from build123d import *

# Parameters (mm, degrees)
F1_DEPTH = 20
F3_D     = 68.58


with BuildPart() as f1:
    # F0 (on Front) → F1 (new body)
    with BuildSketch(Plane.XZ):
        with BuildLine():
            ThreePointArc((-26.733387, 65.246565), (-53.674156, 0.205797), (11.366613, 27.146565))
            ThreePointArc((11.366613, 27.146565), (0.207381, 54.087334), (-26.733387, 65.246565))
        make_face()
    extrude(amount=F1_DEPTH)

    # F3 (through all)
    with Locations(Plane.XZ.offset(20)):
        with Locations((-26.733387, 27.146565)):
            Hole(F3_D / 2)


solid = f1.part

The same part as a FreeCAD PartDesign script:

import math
import FreeCAD as App
import Part
import Sketcher
Q = App.Units.Quantity

doc = App.newDocument("Part")
body = doc.addObject("PartDesign::Body", "Body")

# Sketch on XZ plane
sketch1 = doc.addObject("Sketcher::SketchObject", "Sketch")
body.addObject(sketch1)
sketch1.AttachmentSupport = (doc.XZ_Plane, [""])
sketch1.MapMode = "FlatFace"
sketch1.addGeometry(Part.ArcOfCircle(Part.Circle(App.Vector(-26.733387, 27.146565, 0), App.Vector(0, 0, 1), 38.1), math.radians(90), math.radians(360)), False)
sketch1.addGeometry(Part.ArcOfCircle(Part.Circle(App.Vector(-26.733387, 27.146565, 0), App.Vector(0, 0, 1), 38.1), math.radians(-0.000001), math.radians(90.000001)), False)
sketch1.addConstraint(Sketcher.Constraint("Tangent", 0, 1, 1, 2))
sketch1.addConstraint(Sketcher.Constraint("Coincident", 1, 1, 0, 2))
sketch1.addConstraint(Sketcher.Constraint("Horizontal", 0, 3, 1, 1))
sketch1.addConstraint(Sketcher.Constraint("Vertical", 1, 3, 0, 1))
sketch1.addConstraint(Sketcher.Constraint("Radius", 0, Q("1.5 in")))
sketch1.addConstraint(Sketcher.Constraint("DistanceX", 0, 3, -1, 1, 26.733387))
sketch1.addConstraint(Sketcher.Constraint("DistanceY", -1, 1, 0, 3, 27.146565))
pad1 = doc.addObject("PartDesign::Pad", "Pad")
body.addObject(pad1)
pad1.Profile = sketch1
pad1.Length = 20

# Sketch on XZ plane
sketch2 = doc.addObject("Sketcher::SketchObject", "Sketch001")
body.addObject(sketch2)
sketch2.AttachmentSupport = (doc.XZ_Plane, [""])
sketch2.MapMode = "FlatFace"
sketch2.AttachmentOffset = App.Placement(App.Vector(0, 0, 20), App.Rotation())
sketch2.addGeometry(Part.Circle(App.Vector(-26.733387, 27.146565, 0), App.Vector(0, 0, 1), 34.29), False)
sketch2.addConstraint(Sketcher.Constraint("Diameter", 0, Q("2.7 in")))
sketch2.addConstraint(Sketcher.Constraint("DistanceX", 0, 3, -1, 1, 26.733387))
sketch2.addConstraint(Sketcher.Constraint("DistanceY", -1, 1, 0, 3, 27.146565))
doc.recompute()
hole = doc.addObject("PartDesign::Hole", "Hole")
body.addObject(hole)
hole.Profile = sketch2
hole.ThreadType = "None"
hole.Diameter = Q("2.7 in")
hole.DepthType = "ThroughAll"

doc.recompute()
